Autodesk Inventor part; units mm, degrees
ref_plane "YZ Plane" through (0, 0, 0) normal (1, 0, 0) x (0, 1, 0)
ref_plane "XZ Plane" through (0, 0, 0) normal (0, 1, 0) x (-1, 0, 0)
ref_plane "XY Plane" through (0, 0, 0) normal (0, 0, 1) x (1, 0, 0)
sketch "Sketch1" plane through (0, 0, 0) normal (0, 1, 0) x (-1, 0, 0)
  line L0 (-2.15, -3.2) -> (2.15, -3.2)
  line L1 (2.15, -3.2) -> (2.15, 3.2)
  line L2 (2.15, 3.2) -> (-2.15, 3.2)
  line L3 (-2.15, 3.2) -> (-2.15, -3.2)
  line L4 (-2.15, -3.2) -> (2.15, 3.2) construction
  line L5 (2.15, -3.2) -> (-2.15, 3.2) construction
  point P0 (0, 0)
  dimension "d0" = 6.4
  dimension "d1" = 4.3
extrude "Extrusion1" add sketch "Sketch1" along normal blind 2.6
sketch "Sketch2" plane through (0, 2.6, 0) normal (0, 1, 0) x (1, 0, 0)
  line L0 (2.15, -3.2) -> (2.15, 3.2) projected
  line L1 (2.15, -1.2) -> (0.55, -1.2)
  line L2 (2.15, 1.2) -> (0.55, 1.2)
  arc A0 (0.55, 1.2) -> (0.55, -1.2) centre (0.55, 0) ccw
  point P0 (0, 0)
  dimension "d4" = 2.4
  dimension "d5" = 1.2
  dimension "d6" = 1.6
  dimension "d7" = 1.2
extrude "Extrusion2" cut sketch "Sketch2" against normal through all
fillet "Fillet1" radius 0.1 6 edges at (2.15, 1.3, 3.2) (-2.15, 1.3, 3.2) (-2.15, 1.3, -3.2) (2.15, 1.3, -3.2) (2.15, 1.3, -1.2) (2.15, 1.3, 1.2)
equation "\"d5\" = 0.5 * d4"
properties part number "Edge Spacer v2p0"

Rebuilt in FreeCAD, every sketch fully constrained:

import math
import FreeCAD as App
import Part
import Sketcher
from FreeCAD import Vector
Q = App.Units.Quantity


def edges_at(feature, points):
    """Names of the edges that pass closest to the given points."""
    edges = feature.Shape.Edges
    near = lambda p: min(range(len(edges)), key=lambda i: edges[i].distToShape(Part.Vertex(*p))[0])
    return sorted({f"Edge{near(p) + 1}" for p in points})

doc = App.newDocument("Part")
body = doc.addObject("PartDesign::Body", "Body")

# Sketch on XZ plane
sketch1 = body.newObject("Sketcher::SketchObject", "Sketch")
sketch1.AttachmentSupport = (doc.getObject("XZ_Plane"), [""])
sketch1.MapMode = "FlatFace"
sketch1.addGeometry([
    Part.LineSegment(Vector(2.1, 3.2, 0), Vector(2.1, -3.2, 0)),
    Part.LineSegment(Vector(2.1, -3.2, 0), Vector(-2.1, -3.2, 0)),
    Part.LineSegment(Vector(-2.1, -3.2, 0), Vector(-2.1, 3.2, 0)),
    Part.LineSegment(Vector(-2.1, 3.2, 0), Vector(2.1, 3.2, 0)),
], False)
sketch1.addConstraint([
    Sketcher.Constraint("Coincident", 0, 2, 1, 1),
    Sketcher.Constraint("Coincident", 1, 2, 2, 1),
    Sketcher.Constraint("Coincident", 2, 2, 3, 1),
    Sketcher.Constraint("Coincident", 3, 2, 0, 1),
    Sketcher.Constraint("Vertical", 0),
    Sketcher.Constraint("Horizontal", 1),
    Sketcher.Constraint("Vertical", 2),
    Sketcher.Constraint("Horizontal", 3),
    Sketcher.Constraint("Symmetric", 0, 2, 2, 2, -1, 1),
    Sketcher.Constraint("DistanceX", 1, 2, 1, 1, Q("4.3 mm")),
    Sketcher.Constraint("DistanceY", 0, 2, 0, 1, Q("6.4 mm")),
])
pad1 = body.newObject("PartDesign::Pad", "Pad")
pad1.Profile = sketch1
pad1.Length = 2.6
pad1.Reversed = True

# Sketch on XZ plane
sketch2 = body.newObject("Sketcher::SketchObject", "Sketch001")
sketch2.AttachmentSupport = (doc.getObject("XZ_Plane"), [""])
sketch2.MapMode = "FlatFace"
sketch2.AttachmentOffset = App.Placement(Vector(0, 0, -2.6), App.Rotation())
sketch2.addGeometry([
    Part.LineSegment(Vector(0.6, 1.2, 0), Vector(2.1, 1.2, 0)),
    Part.LineSegment(Vector(2.1, 1.2, 0), Vector(2.1, -1.2, 0)),
    Part.LineSegment(Vector(2.1, -1.2, 0), Vector(0.6, -1.2, 0)),
    Part.ArcOfCircle(Part.Circle(Vector(0.6, 0, 0), Vector(0, 0, 1), 1.2), math.radians(90), math.radians(270)),
], False)
sketch2.addConstraint([
    Sketcher.Constraint("Coincident", 0, 2, 1, 1),
    Sketcher.Constraint("Coincident", 1, 2, 2, 1),
    Sketcher.Constraint("Tangent", 2, 2, 3, 2),
    Sketcher.Constraint("Tangent", 3, 1, 0, 1),
    Sketcher.Constraint("Horizontal", 0),
    Sketcher.Constraint("Vertical", 1),
    Sketcher.Constraint("Horizontal", 2),
    Sketcher.Constraint("PointOnObject", 3, 3, -1),
    Sketcher.Constraint("Radius", 3, Q("1.2 mm")),
    Sketcher.Constraint("DistanceX", 0, 1, 0, 2, Q("1.6 mm")),
    Sketcher.Constraint("DistanceX", -1, 1, 3, 3, Q("0.55 mm")),
])
pocket1 = body.newObject("PartDesign::Pocket", "Pocket")
pocket1.Profile = sketch2
pocket1.Type = "ThroughAll"
pocket1.Reversed = True
doc.recompute()

fillet = body.newObject("PartDesign::Fillet", "Fillet")
fillet.Base = (pocket1, edges_at(pocket1, [
    (2.15, 1.3, 3.2),
    (-2.15, 1.3, 3.2),
    (-2.15, 1.3, -3.2),
    (2.15, 1.3, -3.2),
    (2.15, 1.3, -1.2),
    (2.15, 1.3, 1.2),
]))
fillet.Radius = 0.1

doc.recompute()
